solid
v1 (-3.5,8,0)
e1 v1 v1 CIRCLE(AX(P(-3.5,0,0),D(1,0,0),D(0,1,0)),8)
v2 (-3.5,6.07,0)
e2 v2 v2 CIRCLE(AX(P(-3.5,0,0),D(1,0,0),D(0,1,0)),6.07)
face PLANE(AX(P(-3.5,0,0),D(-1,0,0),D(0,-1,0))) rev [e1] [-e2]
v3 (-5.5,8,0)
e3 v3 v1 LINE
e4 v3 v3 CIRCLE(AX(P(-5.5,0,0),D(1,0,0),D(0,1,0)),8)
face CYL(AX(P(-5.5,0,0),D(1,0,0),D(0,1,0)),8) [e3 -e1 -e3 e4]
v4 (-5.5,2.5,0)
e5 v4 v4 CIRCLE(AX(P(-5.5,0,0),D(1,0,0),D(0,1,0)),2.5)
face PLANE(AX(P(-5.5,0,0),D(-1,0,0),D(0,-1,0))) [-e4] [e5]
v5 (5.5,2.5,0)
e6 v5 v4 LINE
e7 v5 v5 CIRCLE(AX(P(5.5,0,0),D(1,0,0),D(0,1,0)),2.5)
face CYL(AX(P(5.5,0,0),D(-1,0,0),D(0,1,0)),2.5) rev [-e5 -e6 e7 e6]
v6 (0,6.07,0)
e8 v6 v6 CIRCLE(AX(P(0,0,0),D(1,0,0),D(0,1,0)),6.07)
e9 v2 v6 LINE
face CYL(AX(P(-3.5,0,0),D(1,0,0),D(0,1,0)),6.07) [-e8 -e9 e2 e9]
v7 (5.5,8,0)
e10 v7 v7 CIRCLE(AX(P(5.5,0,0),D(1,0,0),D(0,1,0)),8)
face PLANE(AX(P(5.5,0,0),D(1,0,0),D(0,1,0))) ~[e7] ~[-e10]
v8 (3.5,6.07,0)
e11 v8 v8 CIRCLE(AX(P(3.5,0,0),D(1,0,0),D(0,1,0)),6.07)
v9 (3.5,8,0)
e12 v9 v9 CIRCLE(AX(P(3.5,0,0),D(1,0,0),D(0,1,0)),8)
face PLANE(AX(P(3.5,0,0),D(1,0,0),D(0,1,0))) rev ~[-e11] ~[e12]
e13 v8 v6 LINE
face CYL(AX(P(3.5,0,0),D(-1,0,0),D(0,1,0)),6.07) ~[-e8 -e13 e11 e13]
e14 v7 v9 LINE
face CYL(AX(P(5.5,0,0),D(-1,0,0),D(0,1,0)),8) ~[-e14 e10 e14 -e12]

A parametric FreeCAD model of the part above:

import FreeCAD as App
import Part
import Sketcher
Q = App.Units.Quantity


def add_polygon(sketch, points):
    """Adds a closed chain of lines whose ends are joined by coincident constraints."""
    first, n = sketch.GeometryCount, len(points)
    for a, b in zip(points, points[1:] + points[:1]):
        sketch.addGeometry(Part.LineSegment(App.Vector(*a, 0), App.Vector(*b, 0)), False)
    for i in range(n):
        sketch.addConstraint(Sketcher.Constraint("Coincident", first + i, 2, first + (i + 1) % n, 1))

doc = App.newDocument("Part")
params = doc.addObject("Spreadsheet::Sheet", "Params")
for row, (alias, value) in enumerate([
    ("sketch1_width", "5.5 mm"),
    ("sketch1_width2", "3.5 mm"),
    ("revolution_angle", "360 deg"),
], start=1):
    params.set(f"A{row}", alias)
    params.set(f"B{row}", "=" + value)
    params.setAlias(f"B{row}", alias)

body = doc.addObject("PartDesign::Body", "Body")

# Sketch on XY plane
sketch1 = body.newObject("Sketcher::SketchObject", "Sketch")
sketch1.AttachmentSupport = (doc.getObject("XY_Plane"), [""])
sketch1.MapMode = "FlatFace"
add_polygon(sketch1, [(0, 2.5), (5.5, 2.5), (5.5, 8), (3.5, 8), (3.5, 6.07), (0, 6.07)])  # lines 0-5
sketch1.addConstraint([
    Sketcher.Constraint("Horizontal", 0),
    Sketcher.Constraint("Vertical", 1),
    Sketcher.Constraint("Horizontal", 2),
    Sketcher.Constraint("Vertical", 3),
    Sketcher.Constraint("Horizontal", 4),
    Sketcher.Constraint("Vertical", 5),
    Sketcher.Constraint("PointOnObject", 4, 2, -2),
    Sketcher.Constraint("Equal", 0, 1),
    Sketcher.Constraint("DistanceX", 0, 1, 0, 2, Q("5.5 mm")),
    Sketcher.Constraint("DistanceX", 4, 2, 4, 1, Q("3.5 mm")),
    Sketcher.Constraint("DistanceY", -1, 1, 1, 2, Q("8 mm")),
    Sketcher.Constraint("DistanceY", -1, 1, 3, 2, Q("6.07 mm")),
])
sketch1.setExpression("Constraints[14]", "Params.sketch1_width")
sketch1.setExpression("Constraints[15]", "Params.sketch1_width2")
revolution = body.newObject("PartDesign::Revolution", "Revolution")
revolution.Profile = sketch1
revolution.ReferenceAxis = (sketch1, ["H_Axis"])
revolution.setExpression("Angle", "Params.revolution_angle")
doc.recompute()

mirrored = body.newObject("PartDesign::Mirrored", "Mirrored")
mirrored.Originals = [revolution]
mirrored.MirrorPlane = (doc.getObject("YZ_Plane"), [""])
body.Tip = mirrored

doc.recompute()
